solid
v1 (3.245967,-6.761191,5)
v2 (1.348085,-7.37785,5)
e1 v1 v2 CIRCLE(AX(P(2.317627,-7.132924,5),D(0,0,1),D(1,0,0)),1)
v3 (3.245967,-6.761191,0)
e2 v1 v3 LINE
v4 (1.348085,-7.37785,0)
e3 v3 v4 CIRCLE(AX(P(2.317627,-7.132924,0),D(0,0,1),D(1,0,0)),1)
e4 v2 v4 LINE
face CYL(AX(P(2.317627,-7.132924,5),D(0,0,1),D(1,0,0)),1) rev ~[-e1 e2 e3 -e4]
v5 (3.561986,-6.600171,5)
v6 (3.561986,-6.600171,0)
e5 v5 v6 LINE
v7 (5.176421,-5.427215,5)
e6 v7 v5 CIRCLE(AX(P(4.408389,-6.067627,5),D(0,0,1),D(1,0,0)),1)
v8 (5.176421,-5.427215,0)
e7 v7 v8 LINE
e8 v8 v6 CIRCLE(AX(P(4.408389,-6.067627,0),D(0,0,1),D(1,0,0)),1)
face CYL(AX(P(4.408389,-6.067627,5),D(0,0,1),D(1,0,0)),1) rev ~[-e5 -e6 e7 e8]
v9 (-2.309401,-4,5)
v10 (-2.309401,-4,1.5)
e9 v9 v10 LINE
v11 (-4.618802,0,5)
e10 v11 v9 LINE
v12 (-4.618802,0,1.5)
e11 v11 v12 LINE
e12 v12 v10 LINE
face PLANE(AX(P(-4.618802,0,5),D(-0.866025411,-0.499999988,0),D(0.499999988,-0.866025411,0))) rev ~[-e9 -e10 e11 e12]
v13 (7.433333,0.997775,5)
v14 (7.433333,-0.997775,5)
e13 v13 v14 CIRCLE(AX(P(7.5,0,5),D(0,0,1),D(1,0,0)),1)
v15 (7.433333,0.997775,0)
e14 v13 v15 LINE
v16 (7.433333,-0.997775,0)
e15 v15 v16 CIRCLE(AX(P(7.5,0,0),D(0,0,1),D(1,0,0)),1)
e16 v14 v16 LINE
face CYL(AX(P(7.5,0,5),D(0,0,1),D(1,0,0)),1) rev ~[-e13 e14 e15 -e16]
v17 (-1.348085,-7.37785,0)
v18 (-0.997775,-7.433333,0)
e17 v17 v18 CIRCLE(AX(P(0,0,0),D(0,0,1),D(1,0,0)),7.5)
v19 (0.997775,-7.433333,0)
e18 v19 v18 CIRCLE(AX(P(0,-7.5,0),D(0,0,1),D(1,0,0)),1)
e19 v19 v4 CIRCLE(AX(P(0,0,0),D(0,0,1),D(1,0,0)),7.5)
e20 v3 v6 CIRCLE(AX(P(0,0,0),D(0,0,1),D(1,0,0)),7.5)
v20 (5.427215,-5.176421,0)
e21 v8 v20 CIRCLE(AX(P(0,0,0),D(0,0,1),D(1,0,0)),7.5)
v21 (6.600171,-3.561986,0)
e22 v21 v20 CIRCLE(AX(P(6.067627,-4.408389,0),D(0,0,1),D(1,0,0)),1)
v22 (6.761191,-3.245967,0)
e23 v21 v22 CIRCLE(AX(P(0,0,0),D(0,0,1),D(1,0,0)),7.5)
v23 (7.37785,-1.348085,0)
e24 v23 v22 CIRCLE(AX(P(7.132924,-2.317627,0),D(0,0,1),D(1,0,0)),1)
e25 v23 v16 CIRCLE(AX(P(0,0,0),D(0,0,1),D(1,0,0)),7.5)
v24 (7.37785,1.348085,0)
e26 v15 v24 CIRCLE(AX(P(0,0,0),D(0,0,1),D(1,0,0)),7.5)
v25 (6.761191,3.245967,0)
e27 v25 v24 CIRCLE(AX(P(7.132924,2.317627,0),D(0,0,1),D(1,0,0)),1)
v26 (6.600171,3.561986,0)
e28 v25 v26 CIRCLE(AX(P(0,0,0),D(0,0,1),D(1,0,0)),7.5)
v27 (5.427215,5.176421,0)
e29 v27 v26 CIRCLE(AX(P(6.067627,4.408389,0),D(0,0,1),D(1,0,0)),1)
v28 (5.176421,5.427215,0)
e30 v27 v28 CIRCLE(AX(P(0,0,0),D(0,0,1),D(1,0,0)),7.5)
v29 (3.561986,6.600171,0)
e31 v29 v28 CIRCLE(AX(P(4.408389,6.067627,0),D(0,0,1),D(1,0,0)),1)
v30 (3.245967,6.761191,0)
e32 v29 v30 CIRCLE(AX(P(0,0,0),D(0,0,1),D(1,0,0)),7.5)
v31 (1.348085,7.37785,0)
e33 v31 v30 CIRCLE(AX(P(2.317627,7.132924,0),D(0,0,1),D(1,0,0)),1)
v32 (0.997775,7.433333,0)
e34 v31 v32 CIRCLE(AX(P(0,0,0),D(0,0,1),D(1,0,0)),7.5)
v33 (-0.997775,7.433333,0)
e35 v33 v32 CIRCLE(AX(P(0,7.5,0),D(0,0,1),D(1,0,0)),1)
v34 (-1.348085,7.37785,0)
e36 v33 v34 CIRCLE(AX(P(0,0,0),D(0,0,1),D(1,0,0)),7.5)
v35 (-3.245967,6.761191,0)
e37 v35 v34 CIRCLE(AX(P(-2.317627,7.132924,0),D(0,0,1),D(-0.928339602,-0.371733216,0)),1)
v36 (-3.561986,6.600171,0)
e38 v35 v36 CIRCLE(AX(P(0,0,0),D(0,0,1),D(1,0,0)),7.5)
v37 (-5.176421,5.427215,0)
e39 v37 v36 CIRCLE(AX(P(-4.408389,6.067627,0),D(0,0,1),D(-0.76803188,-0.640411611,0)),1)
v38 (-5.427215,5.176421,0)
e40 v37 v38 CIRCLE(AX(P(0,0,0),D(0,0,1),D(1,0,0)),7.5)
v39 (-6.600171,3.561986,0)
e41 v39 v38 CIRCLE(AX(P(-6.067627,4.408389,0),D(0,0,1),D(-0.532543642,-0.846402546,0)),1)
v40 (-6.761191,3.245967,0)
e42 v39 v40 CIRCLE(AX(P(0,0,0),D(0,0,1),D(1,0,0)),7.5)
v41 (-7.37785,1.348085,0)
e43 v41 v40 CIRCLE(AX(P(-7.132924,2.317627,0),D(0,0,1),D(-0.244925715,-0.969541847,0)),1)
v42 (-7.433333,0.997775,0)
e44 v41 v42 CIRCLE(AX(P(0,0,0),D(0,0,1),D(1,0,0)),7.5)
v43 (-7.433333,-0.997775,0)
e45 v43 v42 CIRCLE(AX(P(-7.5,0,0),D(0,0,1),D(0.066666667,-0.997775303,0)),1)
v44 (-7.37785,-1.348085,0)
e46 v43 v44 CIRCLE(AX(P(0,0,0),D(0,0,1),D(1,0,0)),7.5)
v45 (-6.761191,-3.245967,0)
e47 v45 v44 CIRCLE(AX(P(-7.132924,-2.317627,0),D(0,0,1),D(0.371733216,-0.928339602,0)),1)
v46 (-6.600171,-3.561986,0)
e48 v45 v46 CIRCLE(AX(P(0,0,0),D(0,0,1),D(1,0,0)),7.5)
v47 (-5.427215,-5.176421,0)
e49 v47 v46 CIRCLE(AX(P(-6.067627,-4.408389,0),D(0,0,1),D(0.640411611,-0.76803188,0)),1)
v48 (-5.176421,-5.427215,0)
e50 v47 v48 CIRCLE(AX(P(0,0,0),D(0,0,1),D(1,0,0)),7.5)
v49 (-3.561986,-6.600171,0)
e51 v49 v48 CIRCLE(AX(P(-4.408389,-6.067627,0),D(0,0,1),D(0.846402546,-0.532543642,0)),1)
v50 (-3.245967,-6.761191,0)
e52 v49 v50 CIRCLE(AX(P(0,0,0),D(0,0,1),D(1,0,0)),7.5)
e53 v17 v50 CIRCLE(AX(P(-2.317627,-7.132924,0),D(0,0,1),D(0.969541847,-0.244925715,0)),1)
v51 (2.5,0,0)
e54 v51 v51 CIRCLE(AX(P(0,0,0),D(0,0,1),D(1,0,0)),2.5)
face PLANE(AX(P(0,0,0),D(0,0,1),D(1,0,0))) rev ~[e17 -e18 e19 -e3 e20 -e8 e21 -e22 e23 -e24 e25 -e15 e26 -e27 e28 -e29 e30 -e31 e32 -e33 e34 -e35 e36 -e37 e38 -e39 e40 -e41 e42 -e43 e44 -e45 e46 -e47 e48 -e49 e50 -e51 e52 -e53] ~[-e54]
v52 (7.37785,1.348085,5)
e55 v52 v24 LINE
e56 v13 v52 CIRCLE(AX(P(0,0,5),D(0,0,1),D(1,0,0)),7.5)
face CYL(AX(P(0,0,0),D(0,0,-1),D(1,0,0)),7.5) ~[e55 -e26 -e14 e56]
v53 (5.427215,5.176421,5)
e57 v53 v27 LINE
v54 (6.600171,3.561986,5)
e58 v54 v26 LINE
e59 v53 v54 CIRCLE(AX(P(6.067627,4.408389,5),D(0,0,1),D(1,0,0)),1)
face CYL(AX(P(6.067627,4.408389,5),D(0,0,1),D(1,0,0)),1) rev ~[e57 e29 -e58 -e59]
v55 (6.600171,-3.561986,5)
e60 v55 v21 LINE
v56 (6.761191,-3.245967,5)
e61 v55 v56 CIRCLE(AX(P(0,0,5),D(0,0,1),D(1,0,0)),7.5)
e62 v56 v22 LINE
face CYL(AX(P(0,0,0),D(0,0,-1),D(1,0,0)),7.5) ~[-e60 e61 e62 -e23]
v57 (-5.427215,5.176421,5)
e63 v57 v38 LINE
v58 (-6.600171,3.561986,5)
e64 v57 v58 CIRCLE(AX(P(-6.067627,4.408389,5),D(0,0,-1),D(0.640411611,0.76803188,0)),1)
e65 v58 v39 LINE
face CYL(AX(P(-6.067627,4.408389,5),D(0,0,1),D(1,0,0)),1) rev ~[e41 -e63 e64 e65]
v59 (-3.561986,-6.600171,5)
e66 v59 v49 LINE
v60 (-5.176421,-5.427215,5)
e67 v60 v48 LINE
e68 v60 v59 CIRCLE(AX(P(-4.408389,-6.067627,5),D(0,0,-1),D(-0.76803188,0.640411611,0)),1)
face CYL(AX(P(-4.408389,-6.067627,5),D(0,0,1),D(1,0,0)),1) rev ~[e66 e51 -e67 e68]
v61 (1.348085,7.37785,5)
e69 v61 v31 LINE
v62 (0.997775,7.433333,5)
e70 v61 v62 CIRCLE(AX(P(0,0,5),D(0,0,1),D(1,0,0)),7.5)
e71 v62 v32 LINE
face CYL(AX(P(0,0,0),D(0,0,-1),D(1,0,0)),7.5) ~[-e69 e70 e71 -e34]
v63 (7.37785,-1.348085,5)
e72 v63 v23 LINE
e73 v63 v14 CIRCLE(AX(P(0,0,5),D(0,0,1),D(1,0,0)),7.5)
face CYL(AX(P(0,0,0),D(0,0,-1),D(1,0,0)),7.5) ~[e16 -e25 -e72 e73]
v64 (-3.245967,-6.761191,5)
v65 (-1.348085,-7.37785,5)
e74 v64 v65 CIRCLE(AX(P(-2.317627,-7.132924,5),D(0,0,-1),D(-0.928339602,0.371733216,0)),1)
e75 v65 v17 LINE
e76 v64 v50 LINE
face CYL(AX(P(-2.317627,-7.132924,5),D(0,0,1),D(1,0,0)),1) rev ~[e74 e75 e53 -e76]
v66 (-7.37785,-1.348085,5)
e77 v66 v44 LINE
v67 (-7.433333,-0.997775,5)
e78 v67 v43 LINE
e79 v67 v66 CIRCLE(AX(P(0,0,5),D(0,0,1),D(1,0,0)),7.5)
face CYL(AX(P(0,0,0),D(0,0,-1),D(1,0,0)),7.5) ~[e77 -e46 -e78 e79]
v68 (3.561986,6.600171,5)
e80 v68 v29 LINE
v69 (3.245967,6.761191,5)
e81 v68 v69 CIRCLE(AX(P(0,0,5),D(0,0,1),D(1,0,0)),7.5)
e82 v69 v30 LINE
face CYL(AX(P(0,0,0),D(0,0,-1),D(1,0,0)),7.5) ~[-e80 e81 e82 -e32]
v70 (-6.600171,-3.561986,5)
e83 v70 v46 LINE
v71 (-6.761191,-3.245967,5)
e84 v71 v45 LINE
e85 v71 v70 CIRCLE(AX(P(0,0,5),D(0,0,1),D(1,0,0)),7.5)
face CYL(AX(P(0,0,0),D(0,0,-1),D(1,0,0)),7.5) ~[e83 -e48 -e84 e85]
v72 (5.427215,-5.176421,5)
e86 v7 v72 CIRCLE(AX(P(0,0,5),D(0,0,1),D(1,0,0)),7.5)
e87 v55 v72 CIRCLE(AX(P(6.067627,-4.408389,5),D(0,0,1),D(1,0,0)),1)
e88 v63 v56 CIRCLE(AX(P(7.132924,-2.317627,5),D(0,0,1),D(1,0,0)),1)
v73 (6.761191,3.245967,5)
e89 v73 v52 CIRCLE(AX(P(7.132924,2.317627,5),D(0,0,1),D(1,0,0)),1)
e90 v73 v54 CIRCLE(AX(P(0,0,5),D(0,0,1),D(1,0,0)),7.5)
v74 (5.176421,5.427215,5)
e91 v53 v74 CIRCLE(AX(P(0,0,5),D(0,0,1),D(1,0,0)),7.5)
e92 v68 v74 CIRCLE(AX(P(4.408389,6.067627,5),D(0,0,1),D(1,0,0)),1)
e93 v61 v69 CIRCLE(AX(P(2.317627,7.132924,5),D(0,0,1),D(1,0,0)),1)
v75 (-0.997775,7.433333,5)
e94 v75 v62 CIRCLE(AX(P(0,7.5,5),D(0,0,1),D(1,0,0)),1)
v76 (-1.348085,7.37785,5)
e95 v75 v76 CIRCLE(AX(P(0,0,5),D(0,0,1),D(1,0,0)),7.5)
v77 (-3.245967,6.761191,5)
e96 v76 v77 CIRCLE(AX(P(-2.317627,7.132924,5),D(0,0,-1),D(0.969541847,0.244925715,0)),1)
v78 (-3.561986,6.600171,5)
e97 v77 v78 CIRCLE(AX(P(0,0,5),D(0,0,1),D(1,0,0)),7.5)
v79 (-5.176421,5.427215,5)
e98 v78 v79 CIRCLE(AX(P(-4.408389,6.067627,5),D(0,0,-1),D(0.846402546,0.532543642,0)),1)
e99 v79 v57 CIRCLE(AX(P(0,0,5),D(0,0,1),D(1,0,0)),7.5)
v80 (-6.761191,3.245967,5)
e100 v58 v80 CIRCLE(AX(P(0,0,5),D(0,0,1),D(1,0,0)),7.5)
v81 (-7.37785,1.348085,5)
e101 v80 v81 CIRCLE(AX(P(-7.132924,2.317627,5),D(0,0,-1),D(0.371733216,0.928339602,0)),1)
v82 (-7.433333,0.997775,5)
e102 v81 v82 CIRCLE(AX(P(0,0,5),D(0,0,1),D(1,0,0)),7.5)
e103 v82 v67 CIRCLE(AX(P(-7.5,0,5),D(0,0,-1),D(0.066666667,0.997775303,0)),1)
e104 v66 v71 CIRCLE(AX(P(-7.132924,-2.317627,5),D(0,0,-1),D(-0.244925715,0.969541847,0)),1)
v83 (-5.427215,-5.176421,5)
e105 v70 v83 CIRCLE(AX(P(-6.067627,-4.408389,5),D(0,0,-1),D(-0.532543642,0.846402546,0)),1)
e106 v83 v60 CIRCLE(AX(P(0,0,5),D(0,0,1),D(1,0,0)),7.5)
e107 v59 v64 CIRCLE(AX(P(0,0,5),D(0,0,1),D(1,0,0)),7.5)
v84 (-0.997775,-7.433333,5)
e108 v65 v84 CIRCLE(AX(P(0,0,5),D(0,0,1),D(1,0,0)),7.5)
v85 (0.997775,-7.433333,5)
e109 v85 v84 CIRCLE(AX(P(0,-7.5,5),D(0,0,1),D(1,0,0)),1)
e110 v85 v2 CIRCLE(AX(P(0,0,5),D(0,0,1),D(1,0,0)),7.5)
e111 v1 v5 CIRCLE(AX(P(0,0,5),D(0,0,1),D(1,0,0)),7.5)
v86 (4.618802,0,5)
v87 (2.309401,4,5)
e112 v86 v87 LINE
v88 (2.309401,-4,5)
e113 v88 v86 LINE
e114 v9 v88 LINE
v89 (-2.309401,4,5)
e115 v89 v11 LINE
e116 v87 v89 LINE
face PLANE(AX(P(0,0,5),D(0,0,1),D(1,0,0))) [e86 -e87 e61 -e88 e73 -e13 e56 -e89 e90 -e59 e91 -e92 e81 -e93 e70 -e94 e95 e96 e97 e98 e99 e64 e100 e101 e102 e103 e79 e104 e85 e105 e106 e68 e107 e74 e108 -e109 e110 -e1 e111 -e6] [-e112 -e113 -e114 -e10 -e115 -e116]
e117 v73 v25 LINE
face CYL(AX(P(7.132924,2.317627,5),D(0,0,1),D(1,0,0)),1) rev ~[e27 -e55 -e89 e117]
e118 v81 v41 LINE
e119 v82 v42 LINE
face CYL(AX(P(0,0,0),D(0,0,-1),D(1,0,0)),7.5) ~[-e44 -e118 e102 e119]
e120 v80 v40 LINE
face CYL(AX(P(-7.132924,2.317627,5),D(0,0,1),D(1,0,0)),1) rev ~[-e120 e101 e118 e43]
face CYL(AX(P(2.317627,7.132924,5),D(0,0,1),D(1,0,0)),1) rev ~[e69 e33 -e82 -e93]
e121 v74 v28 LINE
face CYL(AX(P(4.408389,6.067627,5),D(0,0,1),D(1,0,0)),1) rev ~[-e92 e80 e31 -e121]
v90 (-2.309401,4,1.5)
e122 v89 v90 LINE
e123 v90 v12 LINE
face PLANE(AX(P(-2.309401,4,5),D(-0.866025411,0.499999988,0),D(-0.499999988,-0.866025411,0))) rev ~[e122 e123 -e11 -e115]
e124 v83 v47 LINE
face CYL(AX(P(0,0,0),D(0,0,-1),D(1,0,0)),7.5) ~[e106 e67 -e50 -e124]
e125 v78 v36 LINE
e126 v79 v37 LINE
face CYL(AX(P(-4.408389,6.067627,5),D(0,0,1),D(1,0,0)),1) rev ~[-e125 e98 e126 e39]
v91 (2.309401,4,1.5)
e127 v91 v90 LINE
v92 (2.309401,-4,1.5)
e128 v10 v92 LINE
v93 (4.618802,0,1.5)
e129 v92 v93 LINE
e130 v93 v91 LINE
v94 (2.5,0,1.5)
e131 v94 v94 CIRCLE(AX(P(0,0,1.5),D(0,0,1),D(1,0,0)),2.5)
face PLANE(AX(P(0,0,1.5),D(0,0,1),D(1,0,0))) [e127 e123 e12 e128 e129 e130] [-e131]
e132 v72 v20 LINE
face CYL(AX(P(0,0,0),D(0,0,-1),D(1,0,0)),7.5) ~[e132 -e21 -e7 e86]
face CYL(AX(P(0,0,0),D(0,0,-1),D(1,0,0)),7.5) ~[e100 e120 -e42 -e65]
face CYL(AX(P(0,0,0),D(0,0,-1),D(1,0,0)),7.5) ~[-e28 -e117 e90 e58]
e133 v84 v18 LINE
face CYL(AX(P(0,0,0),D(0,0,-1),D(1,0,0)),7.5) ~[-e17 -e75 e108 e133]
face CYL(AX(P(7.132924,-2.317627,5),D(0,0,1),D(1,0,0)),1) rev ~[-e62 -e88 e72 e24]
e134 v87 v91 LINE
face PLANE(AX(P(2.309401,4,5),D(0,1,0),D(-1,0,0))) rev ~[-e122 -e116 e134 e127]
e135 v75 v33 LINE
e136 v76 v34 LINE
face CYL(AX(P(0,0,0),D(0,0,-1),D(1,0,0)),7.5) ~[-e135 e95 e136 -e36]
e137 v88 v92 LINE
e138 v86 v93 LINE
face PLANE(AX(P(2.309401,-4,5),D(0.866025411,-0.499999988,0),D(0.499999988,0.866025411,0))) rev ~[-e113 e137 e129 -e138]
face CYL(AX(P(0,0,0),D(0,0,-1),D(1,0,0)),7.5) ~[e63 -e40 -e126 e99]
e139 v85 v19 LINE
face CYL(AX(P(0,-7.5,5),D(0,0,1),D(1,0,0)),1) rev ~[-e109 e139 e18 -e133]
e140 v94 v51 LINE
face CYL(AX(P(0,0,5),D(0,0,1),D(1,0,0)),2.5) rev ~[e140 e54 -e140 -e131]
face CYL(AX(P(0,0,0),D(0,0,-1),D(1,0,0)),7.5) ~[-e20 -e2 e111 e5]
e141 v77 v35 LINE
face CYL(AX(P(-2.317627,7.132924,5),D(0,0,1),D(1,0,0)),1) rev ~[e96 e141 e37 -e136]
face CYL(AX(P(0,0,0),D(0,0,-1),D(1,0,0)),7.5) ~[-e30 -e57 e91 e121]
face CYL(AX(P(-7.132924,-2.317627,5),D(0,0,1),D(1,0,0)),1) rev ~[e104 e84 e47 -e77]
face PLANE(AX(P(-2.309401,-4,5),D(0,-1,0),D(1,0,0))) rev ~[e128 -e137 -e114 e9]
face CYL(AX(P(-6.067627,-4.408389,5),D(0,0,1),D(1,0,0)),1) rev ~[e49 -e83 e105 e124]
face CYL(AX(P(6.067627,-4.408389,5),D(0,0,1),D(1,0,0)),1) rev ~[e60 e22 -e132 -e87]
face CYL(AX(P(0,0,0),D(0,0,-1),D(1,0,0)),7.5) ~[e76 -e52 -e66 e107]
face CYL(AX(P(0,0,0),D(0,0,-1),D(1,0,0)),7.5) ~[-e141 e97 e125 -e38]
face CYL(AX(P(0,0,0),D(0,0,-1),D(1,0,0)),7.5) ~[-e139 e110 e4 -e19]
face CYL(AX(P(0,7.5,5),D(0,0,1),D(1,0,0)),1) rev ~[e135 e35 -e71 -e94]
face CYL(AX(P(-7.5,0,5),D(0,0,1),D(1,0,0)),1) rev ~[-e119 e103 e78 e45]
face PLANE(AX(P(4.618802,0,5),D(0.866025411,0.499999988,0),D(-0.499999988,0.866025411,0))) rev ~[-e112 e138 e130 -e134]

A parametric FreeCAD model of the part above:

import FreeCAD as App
import Part
import Sketcher
Q = App.Units.Quantity

doc = App.newDocument("Part")
body = doc.addObject("PartDesign::Body", "Body")

# Sketch on XY plane
sketch1 = body.newObject("Sketcher::SketchObject", "Sketch")
sketch1.AttachmentSupport = (doc.getObject("XY_Plane"), [""])
sketch1.MapMode = "FlatFace"
sketch1.addGeometry(Part.Circle(App.Vector(0, 0, 0), App.Vector(0, 0, 1), 8), False)
sketch1.addConstraint([
    Sketcher.Constraint("Coincident", 0, 3, -1, 1),
    Sketcher.Constraint("Diameter", 0, Q("15 mm")),
])
pad1 = body.newObject("PartDesign::Pad", "Pad")
pad1.Profile = sketch1
pad1.Length = 5

# Sketch on XY plane
sketch2 = body.newObject("Sketcher::SketchObject", "Sketch001")
sketch2.AttachmentSupport = (doc.getObject("XY_Plane"), [""])
sketch2.MapMode = "FlatFace"
sketch2.AttachmentOffset = App.Placement(App.Vector(0, 0, 5), App.Rotation())
sketch2.addGeometry([
    Part.Circle(App.Vector(0, 7.5, 0), App.Vector(0, 0, 1), 1),  # 0
    Part.Circle(App.Vector(0, 0, 0), App.Vector(0, 0, 1), 2.5),  # 1
    Part.Circle(App.Vector(-2.3, 7.1, 0), App.Vector(0, 0, 1), 1),  # 2
    Part.Circle(App.Vector(-4.4, 6.1, 0), App.Vector(0, 0, 1), 1),  # 3
    Part.Circle(App.Vector(-6.1, 4.4, 0), App.Vector(0, 0, 1), 1),  # 4
    Part.Circle(App.Vector(-7.1, 2.3, 0), App.Vector(0, 0, 1), 1),  # 5
    Part.Circle(App.Vector(-7.5, 0, 0), App.Vector(0, 0, 1), 1),  # 6
    Part.Circle(App.Vector(-7.1, -2.3, 0), App.Vector(0, 0, 1), 1),  # 7
    Part.Circle(App.Vector(-6.1, -4.4, 0), App.Vector(0, 0, 1), 1),  # 8
    Part.Circle(App.Vector(-4.4, -6.1, 0), App.Vector(0, 0, 1), 1),  # 9
    Part.Circle(App.Vector(-2.3, -7.1, 0), App.Vector(0, 0, 1), 1),  # 10
    Part.Circle(App.Vector(0, -7.5, 0), App.Vector(0, 0, 1), 1),  # 11
    Part.Circle(App.Vector(2.3, -7.1, 0), App.Vector(0, 0, 1), 1),  # 12
    Part.Circle(App.Vector(4.4, -6.1, 0), App.Vector(0, 0, 1), 1),  # 13
    Part.Circle(App.Vector(6.1, -4.4, 0), App.Vector(0, 0, 1), 1),  # 14
    Part.Circle(App.Vector(7.1, -2.3, 0), App.Vector(0, 0, 1), 1),  # 15
    Part.Circle(App.Vector(7.5, 0, 0), App.Vector(0, 0, 1), 1),  # 16
    Part.Circle(App.Vector(7.1, 2.3, 0), App.Vector(0, 0, 1), 1),  # 17
    Part.Circle(App.Vector(6.1, 4.4, 0), App.Vector(0, 0, 1), 1),  # 18
    Part.Circle(App.Vector(4.4, 6.1, 0), App.Vector(0, 0, 1), 1),  # 19
    Part.Circle(App.Vector(2.3, 7.1, 0), App.Vector(0, 0, 1), 1),  # 20
], False)
sketch2.addConstraint([
    Sketcher.Constraint("Coincident", 1, 3, -1, 1),
    Sketcher.Constraint("Equal", 0, 2),
    Sketcher.Constraint("Equal", 2, 3),
    Sketcher.Constraint("Equal", 3, 4),
    Sketcher.Constraint("Equal", 4, 5),
    Sketcher.Constraint("Equal", 5, 6),
    Sketcher.Constraint("Equal", 6, 7),
    Sketcher.Constraint("Equal", 7, 8),
    Sketcher.Constraint("Equal", 8, 9),
    Sketcher.Constraint("Equal", 9, 10),
    Sketcher.Constraint("Equal", 10, 11),
    Sketcher.Constraint("Equal", 11, 12),
    Sketcher.Constraint("Equal", 12, 13),
    Sketcher.Constraint("Equal", 13, 14),
    Sketcher.Constraint("Equal", 14, 15),
    Sketcher.Constraint("Equal", 15, 16),
    Sketcher.Constraint("Equal", 16, 17),
    Sketcher.Constraint("Equal", 17, 18),
    Sketcher.Constraint("Equal", 18, 19),
    Sketcher.Constraint("Equal", 19, 20),
    Sketcher.Constraint("Symmetric", 0, 3, 11, 3, -1, 1),
    Sketcher.Constraint("Symmetric", 2, 3, 12, 3, -1, 1),
    Sketcher.Constraint("Symmetric", 3, 3, 13, 3, -1, 1),
    Sketcher.Constraint("Symmetric", 4, 3, 14, 3, -1, 1),
    Sketcher.Constraint("Symmetric", 5, 3, 15, 3, -1, 1),
    Sketcher.Constraint("Symmetric", 6, 3, 16, 3, -1, 1),
    Sketcher.Constraint("Symmetric", 7, 3, 17, 3, -1, 1),
    Sketcher.Constraint("Symmetric", 8, 3, 18, 3, -1, 1),
    Sketcher.Constraint("Symmetric", 9, 3, 19, 3, -1, 1),
    Sketcher.Constraint("Symmetric", 10, 3, 20, 3, -1, 1),
    Sketcher.Constraint("Symmetric", 10, 3, 12, 3, -2),
    Sketcher.Constraint("Symmetric", 9, 3, 13, 3, -2),
    Sketcher.Constraint("Symmetric", 8, 3, 14, 3, -2),
    Sketcher.Constraint("Symmetric", 7, 3, 15, 3, -2),
    Sketcher.Constraint("PointOnObject", 0, 3, -2),
    Sketcher.Constraint("PointOnObject", 6, 3, -1),
    Sketcher.Constraint("Diameter", 0, Q("2 mm")),
    Sketcher.Constraint("Diameter", 1, Q("5 mm")),
    Sketcher.Constraint("DistanceY", -1, 1, 0, 3, Q("7.5 mm")),
    Sketcher.Constraint("DistanceX", 6, 3, -1, 1, Q("7.5 mm")),
    Sketcher.Constraint("DistanceX", 4, 3, 2, 3, Q("3.75 mm")),
    Sketcher.Constraint("DistanceY", 5, 3, 3, 3, Q("3.75 mm")),
    Sketcher.Constraint("DistanceX", 3, 3, -1, 1, Q("4.408389 mm")),
    Sketcher.Constraint("DistanceY", -1, 1, 4, 3, Q("4.408389 mm")),
    Sketcher.Constraint("DistanceX", 3, 3, 2, 3, Q("2.090762 mm")),
    Sketcher.Constraint("DistanceY", 4, 3, 3, 3, Q("1.659238 mm")),
    Sketcher.Constraint("DistanceY", -1, 1, 2, 3, Q("7.132924 mm")),
    Sketcher.Constraint("DistanceX", 5, 3, -1, 1, Q("7.132924 mm")),
])
pocket1 = body.newObject("PartDesign::Pocket", "Pocket")
pocket1.Profile = sketch2
pocket1.Length = 25

# Sketch on XY plane
sketch3 = body.newObject("Sketcher::SketchObject", "Sketch002")
sketch3.AttachmentSupport = (doc.getObject("XY_Plane"), [""])
sketch3.MapMode = "FlatFace"
sketch3.AttachmentOffset = App.Placement(App.Vector(0, 0, 5), App.Rotation())
sketch3.addGeometry([
    Part.LineSegment(App.Vector(-2.3, -4, 0), App.Vector(2.3, -4, 0)),  # 0
    Part.LineSegment(App.Vector(2.3, -4, 0), App.Vector(4.6, 0, 0)),  # 1
    Part.LineSegment(App.Vector(4.6, 0, 0), App.Vector(2.3, 4, 0)),  # 2
    Part.LineSegment(App.Vector(2.3, 4, 0), App.Vector(-2.3, 4, 0)),  # 3
    Part.LineSegment(App.Vector(-2.3, 4, 0), App.Vector(-4.6, 0, 0)),  # 4
    Part.LineSegment(App.Vector(-4.6, 0, 0), App.Vector(-2.3, -4, 0)),  # 5
], False)
sketch3.addConstraint([
    Sketcher.Constraint("Coincident", 0, 2, 1, 1),
    Sketcher.Constraint("Coincident", 1, 2, 2, 1),
    Sketcher.Constraint("Coincident", 2, 2, 3, 1),
    Sketcher.Constraint("Coincident", 3, 2, 4, 1),
    Sketcher.Constraint("Coincident", 4, 2, 5, 1),
    Sketcher.Constraint("Coincident", 5, 2, 0, 1),
    Sketcher.Constraint("Horizontal", 0),
    Sketcher.Constraint("Horizontal", 3),
    Sketcher.Constraint("Symmetric", 0, 2, 3, 2, -1, 1),
    Sketcher.Constraint("Symmetric", 1, 2, 4, 2, -1, 1),
    Sketcher.Constraint("PointOnObject", 1, 2, -1),
    Sketcher.Constraint("Parallel", 2, 5),
    Sketcher.Constraint("Vertical", 0, 2, 2, 2),
    Sketcher.Constraint("Angle", 1, Q("60.000001 deg")),
    Sketcher.Constraint("DistanceY", 0, 2, -1, 1, Q("4 mm")),
    Sketcher.Constraint("DistanceX", 0, 1, 0, 2, Q("4.618802 mm")),
])
pocket2 = body.newObject("PartDesign::Pocket", "Pocket001")
pocket2.Profile = sketch3
pocket2.Length = 3.5

doc.recompute()
